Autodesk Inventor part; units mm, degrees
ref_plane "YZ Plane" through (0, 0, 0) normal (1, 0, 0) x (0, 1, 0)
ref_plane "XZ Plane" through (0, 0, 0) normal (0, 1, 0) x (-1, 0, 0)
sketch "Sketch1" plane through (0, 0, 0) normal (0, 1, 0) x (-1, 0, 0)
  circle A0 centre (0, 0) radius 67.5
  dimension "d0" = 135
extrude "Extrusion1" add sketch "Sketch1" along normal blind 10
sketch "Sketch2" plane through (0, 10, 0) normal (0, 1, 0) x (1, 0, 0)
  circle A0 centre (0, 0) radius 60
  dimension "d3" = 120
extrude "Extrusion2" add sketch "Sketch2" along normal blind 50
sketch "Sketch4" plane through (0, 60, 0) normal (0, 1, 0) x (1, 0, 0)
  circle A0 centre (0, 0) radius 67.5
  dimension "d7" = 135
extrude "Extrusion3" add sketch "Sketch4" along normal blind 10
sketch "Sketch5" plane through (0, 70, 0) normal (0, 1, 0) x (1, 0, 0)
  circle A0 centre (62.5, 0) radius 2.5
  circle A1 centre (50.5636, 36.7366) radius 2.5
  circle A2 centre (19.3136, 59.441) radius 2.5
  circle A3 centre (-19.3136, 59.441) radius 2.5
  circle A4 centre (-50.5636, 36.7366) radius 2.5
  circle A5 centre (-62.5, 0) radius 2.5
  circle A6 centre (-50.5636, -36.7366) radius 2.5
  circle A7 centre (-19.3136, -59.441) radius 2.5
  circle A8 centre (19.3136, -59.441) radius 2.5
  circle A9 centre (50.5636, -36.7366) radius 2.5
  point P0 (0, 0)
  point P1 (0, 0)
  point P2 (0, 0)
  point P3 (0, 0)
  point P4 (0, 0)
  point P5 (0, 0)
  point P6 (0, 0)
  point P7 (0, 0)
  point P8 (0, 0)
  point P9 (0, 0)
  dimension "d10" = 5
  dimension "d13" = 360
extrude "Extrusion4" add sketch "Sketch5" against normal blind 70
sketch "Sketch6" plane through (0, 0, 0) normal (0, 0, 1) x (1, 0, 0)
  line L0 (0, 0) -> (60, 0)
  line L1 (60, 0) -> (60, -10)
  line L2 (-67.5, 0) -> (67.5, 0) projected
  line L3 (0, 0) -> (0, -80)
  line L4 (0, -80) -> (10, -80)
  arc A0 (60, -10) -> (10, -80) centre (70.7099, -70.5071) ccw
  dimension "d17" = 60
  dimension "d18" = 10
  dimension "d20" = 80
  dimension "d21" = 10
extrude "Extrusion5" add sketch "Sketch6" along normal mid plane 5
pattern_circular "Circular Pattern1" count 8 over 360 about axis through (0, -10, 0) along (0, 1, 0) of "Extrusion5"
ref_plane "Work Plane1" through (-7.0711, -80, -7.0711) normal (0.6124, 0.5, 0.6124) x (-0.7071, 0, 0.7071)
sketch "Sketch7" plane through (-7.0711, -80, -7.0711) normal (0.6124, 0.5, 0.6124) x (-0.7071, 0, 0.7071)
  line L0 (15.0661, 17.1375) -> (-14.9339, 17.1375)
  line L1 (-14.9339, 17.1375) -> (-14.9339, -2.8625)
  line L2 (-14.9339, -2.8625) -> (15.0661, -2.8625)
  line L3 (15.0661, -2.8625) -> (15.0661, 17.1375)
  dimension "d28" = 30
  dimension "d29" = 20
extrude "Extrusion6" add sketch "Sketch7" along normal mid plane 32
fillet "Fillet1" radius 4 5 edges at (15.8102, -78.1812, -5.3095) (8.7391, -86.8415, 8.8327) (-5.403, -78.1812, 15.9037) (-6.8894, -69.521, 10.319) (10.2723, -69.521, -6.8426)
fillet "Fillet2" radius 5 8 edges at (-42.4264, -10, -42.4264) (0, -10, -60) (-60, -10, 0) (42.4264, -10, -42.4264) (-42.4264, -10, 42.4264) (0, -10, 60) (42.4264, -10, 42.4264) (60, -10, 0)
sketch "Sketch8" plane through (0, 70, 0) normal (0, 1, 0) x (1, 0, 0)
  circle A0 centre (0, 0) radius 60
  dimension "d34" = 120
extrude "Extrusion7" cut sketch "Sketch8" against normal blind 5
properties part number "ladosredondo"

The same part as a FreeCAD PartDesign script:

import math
import FreeCAD as App
import Part
import Sketcher

V = App.Vector
Q = App.Units.Quantity


def edges_at(feature, points):
    """Names of the edges that pass closest to the given points."""
    edges = feature.Shape.Edges
    near = lambda p: min(range(len(edges)), key=lambda i: edges[i].distToShape(Part.Vertex(*p))[0])
    return sorted({f"Edge{near(p) + 1}" for p in points})


def add_polygon(sketch, points):
    """Adds a closed chain of lines whose ends are joined by coincident constraints."""
    first, n = sketch.GeometryCount, len(points)
    for a, b in zip(points, points[1:] + points[:1]):
        sketch.addGeometry(Part.LineSegment(App.Vector(*a, 0), App.Vector(*b, 0)), False)
    for i in range(n):
        sketch.addConstraint(Sketcher.Constraint("Coincident", first + i, 2, first + (i + 1) % n, 1))

doc = App.newDocument("Part")
body = doc.addObject("PartDesign::Body", "Body")

# Sketch on XZ plane
sketch1 = body.newObject("Sketcher::SketchObject", "Sketch")
sketch1.AttachmentSupport = (doc.getObject("XZ_Plane"), [""])
sketch1.MapMode = "FlatFace"
sketch1.addGeometry(Part.Circle(V(0, 0, 0), V(0, 0, 1), 67.5), False)
sketch1.addConstraint([
    Sketcher.Constraint("Coincident", 0, 3, -1, 1),
    Sketcher.Constraint("Diameter", 0, Q("135 mm")),
])
pad1 = body.newObject("PartDesign::Pad", "Pad")
pad1.Profile = sketch1
pad1.Length = 10
pad1.Reversed = True

# Sketch on XZ plane
sketch2 = body.newObject("Sketcher::SketchObject", "Sketch001")
sketch2.AttachmentSupport = (doc.getObject("XZ_Plane"), [""])
sketch2.MapMode = "FlatFace"
sketch2.AttachmentOffset = App.Placement(V(0, 0, -10), App.Rotation())
sketch2.addGeometry(Part.Circle(V(0, 0, 0), V(0, 0, 1), 60), False)
sketch2.addConstraint([
    Sketcher.Constraint("Coincident", 0, 3, -1, 1),
    Sketcher.Constraint("Diameter", 0, Q("120 mm")),
])
pad2 = body.newObject("PartDesign::Pad", "Pad001")
pad2.Profile = sketch2
pad2.Length = 50
pad2.Reversed = True

# Sketch on XZ plane
sketch3 = body.newObject("Sketcher::SketchObject", "Sketch002")
sketch3.AttachmentSupport = (doc.getObject("XZ_Plane"), [""])
sketch3.MapMode = "FlatFace"
sketch3.AttachmentOffset = App.Placement(V(0, 0, -60), App.Rotation())
sketch3.addGeometry(Part.Circle(V(0, 0, 0), V(0, 0, 1), 67.5), False)
sketch3.addConstraint([
    Sketcher.Constraint("Coincident", 0, 3, -1, 1),
    Sketcher.Constraint("Diameter", 0, Q("135 mm")),
])
pad3 = body.newObject("PartDesign::Pad", "Pad002")
pad3.Profile = sketch3
pad3.Length = 10
pad3.Reversed = True

# Sketch on XZ plane
sketch4 = body.newObject("Sketcher::SketchObject", "Sketch003")
sketch4.AttachmentSupport = (doc.getObject("XZ_Plane"), [""])
sketch4.MapMode = "FlatFace"
sketch4.AttachmentOffset = App.Placement(V(0, 0, -70), App.Rotation())
sketch4.addGeometry([
    Part.Circle(V(62.5, 0, 0), V(0, 0, 1), 2.5),  # 0
    Part.Circle(V(50.5636, -36.7366, 0), V(0, 0, 1), 2.5),  # 1
    Part.Circle(V(19.3136, -59.441, 0), V(0, 0, 1), 2.5),  # 2
    Part.Circle(V(-19.3136, -59.441, 0), V(0, 0, 1), 2.5),  # 3
    Part.Circle(V(-50.5636, -36.7366, 0), V(0, 0, 1), 2.5),  # 4
    Part.Circle(V(-62.5, 0, 0), V(0, 0, 1), 2.5),  # 5
    Part.Circle(V(-50.5636, 36.7366, 0), V(0, 0, 1), 2.5),  # 6
    Part.Circle(V(-19.3136, 59.441, 0), V(0, 0, 1), 2.5),  # 7
    Part.Circle(V(19.3136, 59.441, 0), V(0, 0, 1), 2.5),  # 8
    Part.Circle(V(50.5636, 36.7366, 0), V(0, 0, 1), 2.5),  # 9
], False)
sketch4.addConstraint([
    Sketcher.Constraint("Equal", 0, 1),
    Sketcher.Constraint("Equal", 1, 2),
    Sketcher.Constraint("Equal", 2, 3),
    Sketcher.Constraint("Equal", 3, 4),
    Sketcher.Constraint("Equal", 4, 5),
    Sketcher.Constraint("Equal", 5, 6),
    Sketcher.Constraint("Equal", 6, 7),
    Sketcher.Constraint("Equal", 7, 8),
    Sketcher.Constraint("Equal", 8, 9),
    Sketcher.Constraint("Symmetric", 0, 3, 5, 3, -1, 1),
    Sketcher.Constraint("Symmetric", 1, 3, 6, 3, -1, 1),
    Sketcher.Constraint("Symmetric", 2, 3, 7, 3, -1, 1),
    Sketcher.Constraint("Symmetric", 3, 3, 8, 3, -1, 1),
    Sketcher.Constraint("Symmetric", 4, 3, 9, 3, -1, 1),
    Sketcher.Constraint("Symmetric", 2, 3, 3, 3, -2),
    Sketcher.Constraint("Symmetric", 1, 3, 4, 3, -2),
    Sketcher.Constraint("PointOnObject", 0, 3, -1),
    Sketcher.Constraint("Diameter", 0, Q("5 mm")),
    Sketcher.Constraint("DistanceX", 5, 3, 0, 3, Q("125 mm")),
    Sketcher.Constraint("DistanceX", 2, 3, 1, 3, Q("31.25 mm")),
    Sketcher.Constraint("DistanceY", 2, 3, -1, 1, Q("59.441 mm")),
    Sketcher.Constraint("DistanceX", -1, 1, 1, 3, Q("50.5636 mm")),
    Sketcher.Constraint("DistanceY", 1, 3, -1, 1, Q("36.7366 mm")),
])
pad4 = body.newObject("PartDesign::Pad", "Pad003")
pad4.Profile = sketch4
pad4.Length = 70

# Sketch on XY plane
sketch5 = body.newObject("Sketcher::SketchObject", "Sketch004")
sketch5.AttachmentSupport = (doc.getObject("XY_Plane"), [""])
sketch5.MapMode = "FlatFace"
sketch5.addGeometry([
    Part.LineSegment(V(60, 0, 0), V(0, 0, 0)),  # 0
    Part.LineSegment(V(0, 0, 0), V(0, -80, 0)),  # 1
    Part.LineSegment(V(0, -80, 0), V(10, -80, 0)),  # 2
    Part.ArcOfCircle(Part.Circle(V(70.7099, -70.5071, 0), V(0, 0, 1), 61.447629), math.radians(100.037526), math.radians(188.887088)),  # 3
    Part.LineSegment(V(60, -10, 0), V(60, 0, 0)),  # 4
], False)
sketch5.addConstraint([
    Sketcher.Constraint("Coincident", 0, 2, 1, 1),
    Sketcher.Constraint("Coincident", 1, 2, 2, 1),
    Sketcher.Constraint("Coincident", 2, 2, 3, 2),
    Sketcher.Constraint("Coincident", 3, 1, 4, 1),
    Sketcher.Constraint("Coincident", 4, 2, 0, 1),
    Sketcher.Constraint("Horizontal", 0),
    Sketcher.Constraint("Vertical", 1),
    Sketcher.Constraint("Horizontal", 2),
    Sketcher.Constraint("Vertical", 4),
    Sketcher.Constraint("Coincident", 0, 2, -1, 1),
    Sketcher.Constraint("Equal", 2, 4),
    Sketcher.Constraint("DistanceX", 0, 2, 0, 1, Q("60 mm")),
    Sketcher.Constraint("DistanceX", 2, 1, 2, 2, Q("10 mm")),
    Sketcher.Constraint("DistanceY", 1, 2, 1, 1, Q("80 mm")),
    Sketcher.Constraint("Radius", 3, Q("61.4476 mm")),
])
pad5 = body.newObject("PartDesign::Pad", "Pad004")
pad5.Profile = sketch5
pad5.Length = 5
pad5.Midplane = True
doc.recompute()

polarpattern = body.newObject("PartDesign::PolarPattern", "PolarPattern")
polarpattern.Originals = [pad5]
polarpattern.Axis = (doc.getObject("Y_Axis"), [""])
polarpattern.Angle = 360
polarpattern.Occurrences = 8
body.Tip = polarpattern

# Sketch on an angled plane
sketch6 = body.newObject("Sketcher::SketchObject", "Sketch005")
sketch6.Placement = App.Placement(V(-7.0711, -80, -7.0711), App.Rotation(V(-0.707106781, 0, 0.707106781), V(0.353541455, -0.866035148, 0.353541455), V(0.612379326, 0.499983121, 0.612379326), "ZXY"))
add_polygon(sketch6, [(15.0661, -2.8625), (15.0661, 17.1375), (-14.9339, 17.1375), (-14.9339, -2.8625)])  # lines 0-3
sketch6.addConstraint([
    Sketcher.Constraint("Vertical", 0),
    Sketcher.Constraint("Horizontal", 1),
    Sketcher.Constraint("Vertical", 2),
    Sketcher.Constraint("Horizontal", 3),
    Sketcher.Constraint("DistanceX", 1, 2, 1, 1, Q("30 mm")),
    Sketcher.Constraint("DistanceY", 0, 1, 0, 2, Q("20 mm")),
    Sketcher.Constraint("DistanceX", -1, 1, 0, 2, Q("15.066 mm")),
    Sketcher.Constraint("DistanceY", -1, 1, 0, 2, Q("17.1375 mm")),
])
pad6 = body.newObject("PartDesign::Pad", "Pad005")
pad6.Profile = sketch6
pad6.Length = 32
pad6.Midplane = True
doc.recompute()

fillet = body.newObject("PartDesign::Fillet", "Fillet")
fillet.Base = (pad6, edges_at(pad6, [
    (15.81, -78.181, -5.309),
    (8.739, -86.841, 8.833),
    (-5.403, -78.181, 15.904),
    (-6.889, -69.521, 10.319),
    (10.272, -69.521, -6.843),
]))
fillet.Radius = 4
doc.recompute()

fillet2 = body.newObject("PartDesign::Fillet", "Fillet001")
fillet2.Base = (fillet, edges_at(fillet, [
    (-42.426, -10, -42.426),
    (0, -10, -60),
    (-60, -10, 0),
    (42.426, -10, -42.426),
    (-42.426, -10, 42.426),
    (0, -10, 60),
    (42.426, -10, 42.426),
    (60, -10, 0),
]))
fillet2.Radius = 5

# Sketch on XZ plane
sketch7 = body.newObject("Sketcher::SketchObject", "Sketch006")
sketch7.AttachmentSupport = (doc.getObject("XZ_Plane"), [""])
sketch7.MapMode = "FlatFace"
sketch7.AttachmentOffset = App.Placement(V(0, 0, -70), App.Rotation())
sketch7.addGeometry(Part.Circle(V(0, 0, 0), V(0, 0, 1), 60), False)
sketch7.addConstraint([
    Sketcher.Constraint("Coincident", 0, 3, -1, 1),
    Sketcher.Constraint("Diameter", 0, Q("120 mm")),
])
pocket1 = body.newObject("PartDesign::Pocket", "Pocket")
pocket1.Profile = sketch7
pocket1.Length = 5
pocket1.Reversed = True

doc.recompute()
